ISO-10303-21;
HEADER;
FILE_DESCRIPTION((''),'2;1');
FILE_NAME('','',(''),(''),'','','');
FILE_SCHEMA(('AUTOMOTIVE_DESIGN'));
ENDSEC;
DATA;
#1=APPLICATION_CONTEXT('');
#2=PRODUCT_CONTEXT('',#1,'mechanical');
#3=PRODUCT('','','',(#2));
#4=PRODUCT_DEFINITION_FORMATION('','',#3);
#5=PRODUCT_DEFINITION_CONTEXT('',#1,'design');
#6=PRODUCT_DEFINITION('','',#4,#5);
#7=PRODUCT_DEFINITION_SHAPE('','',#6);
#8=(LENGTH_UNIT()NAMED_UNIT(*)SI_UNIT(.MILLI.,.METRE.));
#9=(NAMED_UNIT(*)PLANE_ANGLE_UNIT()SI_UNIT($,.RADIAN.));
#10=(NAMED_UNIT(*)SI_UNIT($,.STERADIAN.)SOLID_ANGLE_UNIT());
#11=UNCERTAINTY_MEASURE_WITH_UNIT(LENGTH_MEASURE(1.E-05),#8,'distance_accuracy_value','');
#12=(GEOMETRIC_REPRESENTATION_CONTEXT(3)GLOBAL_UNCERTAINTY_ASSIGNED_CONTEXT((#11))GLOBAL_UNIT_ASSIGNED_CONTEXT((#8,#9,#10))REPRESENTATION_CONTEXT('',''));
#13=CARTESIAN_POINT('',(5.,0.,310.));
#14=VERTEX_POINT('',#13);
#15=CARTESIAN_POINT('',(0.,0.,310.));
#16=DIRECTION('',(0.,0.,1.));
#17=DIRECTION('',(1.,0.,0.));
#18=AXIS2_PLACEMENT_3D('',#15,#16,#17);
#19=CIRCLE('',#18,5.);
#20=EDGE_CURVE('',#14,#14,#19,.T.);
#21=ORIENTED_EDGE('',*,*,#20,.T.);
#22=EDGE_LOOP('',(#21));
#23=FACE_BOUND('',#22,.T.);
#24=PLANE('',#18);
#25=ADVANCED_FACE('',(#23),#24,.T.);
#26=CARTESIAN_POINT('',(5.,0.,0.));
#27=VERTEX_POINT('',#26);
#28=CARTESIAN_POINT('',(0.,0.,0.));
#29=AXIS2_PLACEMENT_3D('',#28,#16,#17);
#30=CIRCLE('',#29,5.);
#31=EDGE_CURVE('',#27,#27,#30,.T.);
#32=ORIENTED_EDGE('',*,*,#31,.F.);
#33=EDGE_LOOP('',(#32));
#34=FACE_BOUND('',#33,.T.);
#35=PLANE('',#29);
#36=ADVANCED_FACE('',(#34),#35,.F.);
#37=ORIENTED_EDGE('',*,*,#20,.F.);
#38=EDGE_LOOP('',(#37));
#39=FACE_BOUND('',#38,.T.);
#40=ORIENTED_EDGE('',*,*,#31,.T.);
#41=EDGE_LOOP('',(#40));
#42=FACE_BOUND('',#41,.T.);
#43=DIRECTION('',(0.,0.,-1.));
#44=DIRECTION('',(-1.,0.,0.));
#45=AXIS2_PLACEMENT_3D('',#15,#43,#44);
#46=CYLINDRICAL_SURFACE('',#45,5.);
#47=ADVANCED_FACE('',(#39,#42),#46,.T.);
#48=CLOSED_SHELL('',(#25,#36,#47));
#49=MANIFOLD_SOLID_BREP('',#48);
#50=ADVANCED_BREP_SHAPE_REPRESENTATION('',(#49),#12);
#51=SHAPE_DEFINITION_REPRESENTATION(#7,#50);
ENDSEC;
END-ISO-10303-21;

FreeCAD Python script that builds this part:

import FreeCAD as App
import Part
import Sketcher

V = App.Vector
Q = App.Units.Quantity

doc = App.newDocument("Part")
params = doc.addObject("Spreadsheet::Sheet", "Params")
for row, (alias, value) in enumerate([
    ("sketch1_diameter", "10 mm"),
    ("pad1_length", "310 mm"),
], start=1):
    params.set(f"A{row}", alias)
    params.set(f"B{row}", "=" + value)
    params.setAlias(f"B{row}", alias)

body = doc.addObject("PartDesign::Body", "Body")

sketch1 = body.newObject("Sketcher::SketchObject", "Sketch")
sketch1.AttachmentSupport = (doc.getObject("XY_Plane"), [""])
sketch1.MapMode = "FlatFace"
sketch1.addGeometry(Part.Circle(V(0, 0, 0), V(0, 0, 1), 5), False)
sketch1.addConstraint(Sketcher.Constraint("Coincident", 0, 3, -1, 1))
sketch1.addConstraint(Sketcher.Constraint("Diameter", 0, Q("10 mm")))
sketch1.setExpression("Constraints[1]", "Params.sketch1_diameter")
pad1 = body.newObject("PartDesign::Pad", "Pad")
pad1.Profile = sketch1
pad1.setExpression("Length", "Params.pad1_length")

doc.recompute()
